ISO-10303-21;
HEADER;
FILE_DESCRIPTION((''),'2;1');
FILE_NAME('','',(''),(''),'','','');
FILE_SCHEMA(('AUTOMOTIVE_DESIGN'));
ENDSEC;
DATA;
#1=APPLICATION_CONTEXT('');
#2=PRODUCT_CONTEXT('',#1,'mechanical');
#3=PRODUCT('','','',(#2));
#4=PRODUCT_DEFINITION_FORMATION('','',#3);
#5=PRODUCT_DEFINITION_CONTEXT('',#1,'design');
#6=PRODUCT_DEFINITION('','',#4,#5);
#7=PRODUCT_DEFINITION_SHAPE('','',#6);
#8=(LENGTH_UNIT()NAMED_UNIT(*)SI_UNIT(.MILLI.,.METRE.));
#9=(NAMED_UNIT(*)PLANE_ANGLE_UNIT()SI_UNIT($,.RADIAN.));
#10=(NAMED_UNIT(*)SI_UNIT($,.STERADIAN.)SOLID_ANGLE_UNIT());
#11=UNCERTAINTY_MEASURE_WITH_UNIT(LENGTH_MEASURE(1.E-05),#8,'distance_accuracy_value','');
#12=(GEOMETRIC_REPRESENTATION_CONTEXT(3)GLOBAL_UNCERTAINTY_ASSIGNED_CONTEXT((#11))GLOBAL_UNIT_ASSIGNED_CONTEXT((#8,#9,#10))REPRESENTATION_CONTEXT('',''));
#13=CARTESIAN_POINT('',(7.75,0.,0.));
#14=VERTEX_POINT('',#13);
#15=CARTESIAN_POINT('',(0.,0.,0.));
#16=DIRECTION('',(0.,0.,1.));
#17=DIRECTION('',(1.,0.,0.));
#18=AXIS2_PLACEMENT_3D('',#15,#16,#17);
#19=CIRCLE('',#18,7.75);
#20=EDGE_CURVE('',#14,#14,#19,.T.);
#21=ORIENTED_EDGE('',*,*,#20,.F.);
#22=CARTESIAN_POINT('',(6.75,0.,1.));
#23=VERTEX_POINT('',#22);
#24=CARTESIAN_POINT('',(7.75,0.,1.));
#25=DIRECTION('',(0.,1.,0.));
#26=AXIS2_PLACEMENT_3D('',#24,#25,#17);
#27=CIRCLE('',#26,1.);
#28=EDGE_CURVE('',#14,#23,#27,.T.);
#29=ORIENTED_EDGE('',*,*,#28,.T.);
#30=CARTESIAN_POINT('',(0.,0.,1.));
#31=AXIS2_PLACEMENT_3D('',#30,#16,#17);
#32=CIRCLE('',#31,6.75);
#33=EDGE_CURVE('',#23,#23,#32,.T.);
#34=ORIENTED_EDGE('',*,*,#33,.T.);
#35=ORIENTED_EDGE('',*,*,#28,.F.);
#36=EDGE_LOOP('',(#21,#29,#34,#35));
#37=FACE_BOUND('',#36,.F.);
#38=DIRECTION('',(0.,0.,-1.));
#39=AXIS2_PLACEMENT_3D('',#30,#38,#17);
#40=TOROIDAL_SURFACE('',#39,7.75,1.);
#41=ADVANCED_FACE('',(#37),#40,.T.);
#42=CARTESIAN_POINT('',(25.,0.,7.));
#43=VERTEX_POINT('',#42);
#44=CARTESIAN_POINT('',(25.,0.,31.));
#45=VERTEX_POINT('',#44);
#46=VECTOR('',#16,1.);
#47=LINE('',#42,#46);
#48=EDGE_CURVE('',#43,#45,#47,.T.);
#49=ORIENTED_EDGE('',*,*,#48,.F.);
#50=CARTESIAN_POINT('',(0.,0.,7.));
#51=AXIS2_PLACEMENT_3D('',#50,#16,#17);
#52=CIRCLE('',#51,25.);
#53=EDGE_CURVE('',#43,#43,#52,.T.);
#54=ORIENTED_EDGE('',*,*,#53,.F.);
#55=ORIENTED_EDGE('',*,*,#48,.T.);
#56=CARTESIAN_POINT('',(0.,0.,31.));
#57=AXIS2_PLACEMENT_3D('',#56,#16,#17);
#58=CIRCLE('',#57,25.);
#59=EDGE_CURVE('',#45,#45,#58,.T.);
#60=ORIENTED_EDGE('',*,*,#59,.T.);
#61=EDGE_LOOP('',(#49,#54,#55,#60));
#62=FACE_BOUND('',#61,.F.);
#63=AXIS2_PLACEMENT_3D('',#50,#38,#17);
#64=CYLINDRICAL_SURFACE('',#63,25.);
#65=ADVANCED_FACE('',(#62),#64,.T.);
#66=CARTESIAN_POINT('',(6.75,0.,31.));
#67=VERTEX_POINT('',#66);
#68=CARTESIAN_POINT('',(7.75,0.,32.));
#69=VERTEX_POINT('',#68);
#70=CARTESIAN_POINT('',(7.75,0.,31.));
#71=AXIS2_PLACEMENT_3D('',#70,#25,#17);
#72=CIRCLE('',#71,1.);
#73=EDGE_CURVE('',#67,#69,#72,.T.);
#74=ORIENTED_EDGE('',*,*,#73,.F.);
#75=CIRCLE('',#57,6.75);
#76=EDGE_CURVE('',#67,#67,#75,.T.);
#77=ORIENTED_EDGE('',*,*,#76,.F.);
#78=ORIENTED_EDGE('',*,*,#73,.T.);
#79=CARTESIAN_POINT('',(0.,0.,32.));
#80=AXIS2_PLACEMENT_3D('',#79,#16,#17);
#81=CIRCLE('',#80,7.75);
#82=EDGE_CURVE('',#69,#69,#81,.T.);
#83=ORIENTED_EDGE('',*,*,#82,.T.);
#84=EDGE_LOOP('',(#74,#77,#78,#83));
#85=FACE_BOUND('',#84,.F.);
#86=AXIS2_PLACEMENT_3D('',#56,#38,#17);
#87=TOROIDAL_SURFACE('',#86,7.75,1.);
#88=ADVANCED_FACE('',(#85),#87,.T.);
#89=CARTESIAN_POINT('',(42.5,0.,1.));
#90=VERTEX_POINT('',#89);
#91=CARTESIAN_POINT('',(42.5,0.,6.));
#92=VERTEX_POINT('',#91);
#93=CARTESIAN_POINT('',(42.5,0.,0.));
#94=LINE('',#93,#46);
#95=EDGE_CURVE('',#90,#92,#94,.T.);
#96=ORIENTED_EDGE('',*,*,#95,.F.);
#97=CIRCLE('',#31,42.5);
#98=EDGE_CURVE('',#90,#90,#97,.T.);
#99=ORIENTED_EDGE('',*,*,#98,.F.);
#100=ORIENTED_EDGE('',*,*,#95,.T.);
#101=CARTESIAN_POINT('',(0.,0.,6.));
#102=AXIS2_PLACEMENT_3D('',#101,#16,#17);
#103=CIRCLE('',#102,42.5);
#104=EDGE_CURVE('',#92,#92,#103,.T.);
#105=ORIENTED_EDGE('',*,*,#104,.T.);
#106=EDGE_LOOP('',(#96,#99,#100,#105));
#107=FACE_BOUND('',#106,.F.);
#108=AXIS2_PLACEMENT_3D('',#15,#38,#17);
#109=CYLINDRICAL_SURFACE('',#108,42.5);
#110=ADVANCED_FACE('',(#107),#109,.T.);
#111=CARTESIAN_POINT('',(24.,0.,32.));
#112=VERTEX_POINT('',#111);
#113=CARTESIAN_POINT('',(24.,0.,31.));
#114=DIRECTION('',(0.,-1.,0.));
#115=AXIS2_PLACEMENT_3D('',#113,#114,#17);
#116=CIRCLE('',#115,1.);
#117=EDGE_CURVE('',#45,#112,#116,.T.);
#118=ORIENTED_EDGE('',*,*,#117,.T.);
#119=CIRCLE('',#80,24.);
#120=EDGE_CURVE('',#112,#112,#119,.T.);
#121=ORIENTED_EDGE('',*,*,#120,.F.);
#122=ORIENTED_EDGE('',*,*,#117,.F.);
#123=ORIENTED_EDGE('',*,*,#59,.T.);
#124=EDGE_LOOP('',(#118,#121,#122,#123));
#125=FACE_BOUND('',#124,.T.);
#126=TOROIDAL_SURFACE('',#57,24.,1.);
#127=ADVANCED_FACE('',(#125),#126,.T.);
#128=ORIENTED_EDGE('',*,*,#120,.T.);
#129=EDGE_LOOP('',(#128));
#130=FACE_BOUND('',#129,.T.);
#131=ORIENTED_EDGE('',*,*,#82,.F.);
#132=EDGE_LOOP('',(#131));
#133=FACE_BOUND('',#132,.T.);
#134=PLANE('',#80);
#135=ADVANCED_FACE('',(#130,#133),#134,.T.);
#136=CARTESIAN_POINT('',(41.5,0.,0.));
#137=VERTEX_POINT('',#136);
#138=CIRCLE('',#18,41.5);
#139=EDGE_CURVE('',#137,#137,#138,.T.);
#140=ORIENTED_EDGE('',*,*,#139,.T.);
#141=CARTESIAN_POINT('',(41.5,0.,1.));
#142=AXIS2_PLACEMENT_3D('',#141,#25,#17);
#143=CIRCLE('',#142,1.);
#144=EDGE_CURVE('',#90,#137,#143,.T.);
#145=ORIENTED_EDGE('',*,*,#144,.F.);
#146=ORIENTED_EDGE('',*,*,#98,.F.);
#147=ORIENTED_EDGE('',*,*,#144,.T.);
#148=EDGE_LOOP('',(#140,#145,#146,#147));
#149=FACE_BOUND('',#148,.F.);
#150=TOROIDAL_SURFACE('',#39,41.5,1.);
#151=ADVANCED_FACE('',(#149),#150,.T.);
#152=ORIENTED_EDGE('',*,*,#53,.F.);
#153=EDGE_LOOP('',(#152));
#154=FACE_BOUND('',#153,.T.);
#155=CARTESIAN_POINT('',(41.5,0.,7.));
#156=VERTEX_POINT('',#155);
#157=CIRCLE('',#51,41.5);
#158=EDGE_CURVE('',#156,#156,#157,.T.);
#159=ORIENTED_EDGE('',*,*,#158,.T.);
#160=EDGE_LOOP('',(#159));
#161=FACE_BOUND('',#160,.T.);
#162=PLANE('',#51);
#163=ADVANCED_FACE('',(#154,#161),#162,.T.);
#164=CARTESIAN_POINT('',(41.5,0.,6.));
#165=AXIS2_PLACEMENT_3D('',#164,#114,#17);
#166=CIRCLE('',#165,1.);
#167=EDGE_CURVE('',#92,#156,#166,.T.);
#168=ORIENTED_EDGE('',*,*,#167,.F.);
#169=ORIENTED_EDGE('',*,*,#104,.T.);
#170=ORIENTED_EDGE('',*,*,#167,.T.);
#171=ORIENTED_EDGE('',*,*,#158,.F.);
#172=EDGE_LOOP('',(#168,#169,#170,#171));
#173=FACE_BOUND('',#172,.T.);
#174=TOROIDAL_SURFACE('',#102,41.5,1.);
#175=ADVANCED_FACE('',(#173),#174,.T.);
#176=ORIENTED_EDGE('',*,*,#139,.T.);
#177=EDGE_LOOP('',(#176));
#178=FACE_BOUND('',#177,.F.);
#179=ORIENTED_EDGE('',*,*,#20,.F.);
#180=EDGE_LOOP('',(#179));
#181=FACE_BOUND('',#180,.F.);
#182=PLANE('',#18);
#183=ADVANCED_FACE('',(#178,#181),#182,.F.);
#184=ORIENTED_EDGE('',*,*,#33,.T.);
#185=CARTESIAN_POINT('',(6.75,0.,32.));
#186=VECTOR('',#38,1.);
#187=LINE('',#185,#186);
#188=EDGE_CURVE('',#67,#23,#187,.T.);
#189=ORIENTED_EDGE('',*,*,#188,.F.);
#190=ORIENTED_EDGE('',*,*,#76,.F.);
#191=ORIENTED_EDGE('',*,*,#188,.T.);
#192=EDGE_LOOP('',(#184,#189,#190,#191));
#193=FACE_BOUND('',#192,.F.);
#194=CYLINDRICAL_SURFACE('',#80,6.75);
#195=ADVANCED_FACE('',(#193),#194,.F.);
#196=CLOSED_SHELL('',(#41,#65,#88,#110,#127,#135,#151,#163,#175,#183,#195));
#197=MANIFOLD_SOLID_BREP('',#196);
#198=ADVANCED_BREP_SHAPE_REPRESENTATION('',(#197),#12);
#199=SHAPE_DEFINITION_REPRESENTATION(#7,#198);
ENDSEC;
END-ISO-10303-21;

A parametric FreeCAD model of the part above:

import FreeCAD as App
import Part
import Sketcher
from FreeCAD import Vector


def edges_at(feature, points):
    """Names of the edges that pass closest to the given points."""
    edges = feature.Shape.Edges
    near = lambda p: min(range(len(edges)), key=lambda i: edges[i].distToShape(Part.Vertex(*p))[0])
    return sorted({f"Edge{near(p) + 1}" for p in points})

doc = App.newDocument("Part")
body = doc.addObject("PartDesign::Body", "Body")

# Sketch on XY plane
sketch1 = doc.addObject("Sketcher::SketchObject", "Sketch")
body.addObject(sketch1)
sketch1.AttachmentSupport = (doc.XY_Plane, [""])
sketch1.MapMode = "FlatFace"
sketch1.addGeometry(Part.Circle(Vector(0, 0, 0), Vector(0, 0, 1), 42), False)
sketch1.addConstraint(Sketcher.Constraint("Coincident", 0, 3, -1, 1))
sketch1.addConstraint(Sketcher.Constraint("Diameter", 0, 85.0))
pad1 = doc.addObject("PartDesign::Pad", "Pad")
body.addObject(pad1)
pad1.Profile = sketch1
pad1.Length = 7

# Sketch on XY plane
sketch2 = doc.addObject("Sketcher::SketchObject", "Sketch001")
body.addObject(sketch2)
sketch2.AttachmentSupport = (doc.XY_Plane, [""])
sketch2.MapMode = "FlatFace"
sketch2.AttachmentOffset = App.Placement(Vector(0, 0, 7), App.Rotation())
sketch2.addGeometry(Part.Circle(Vector(0, 0, 0), Vector(0, 0, 1), 25), False)
sketch2.addConstraint(Sketcher.Constraint("Coincident", 0, 3, -1, 1))
sketch2.addConstraint(Sketcher.Constraint("Diameter", 0, 50.0))
pad2 = doc.addObject("PartDesign::Pad", "Pad001")
body.addObject(pad2)
pad2.Profile = sketch2
pad2.Length = 25

# Sketch on XY plane
sketch3 = doc.addObject("Sketcher::SketchObject", "Sketch002")
body.addObject(sketch3)
sketch3.AttachmentSupport = (doc.XY_Plane, [""])
sketch3.MapMode = "FlatFace"
sketch3.AttachmentOffset = App.Placement(Vector(0, 0, 32), App.Rotation())
sketch3.addGeometry(Part.Circle(Vector(0, 0, 0), Vector(0, 0, 1), 7), False)
sketch3.addConstraint(Sketcher.Constraint("Coincident", 0, 3, -1, 1))
sketch3.addConstraint(Sketcher.Constraint("Diameter", 0, 13.5))
pocket1 = doc.addObject("PartDesign::Pocket", "Pocket")
body.addObject(pocket1)
pocket1.Profile = sketch3
pocket1.Type = "ThroughAll"
doc.recompute()

fillet = doc.addObject("PartDesign::Fillet", "Fillet")
body.addObject(fillet)
fillet.Base = (pocket1, edges_at(pocket1, [
    (-6.75, 0, 32),
    (-6.75, 0, 0),
    (-42.5, 0, 0),
    (-42.5, 0, 7),
    (-25, 0, 32),
]))
fillet.Radius = 1

doc.recompute()
